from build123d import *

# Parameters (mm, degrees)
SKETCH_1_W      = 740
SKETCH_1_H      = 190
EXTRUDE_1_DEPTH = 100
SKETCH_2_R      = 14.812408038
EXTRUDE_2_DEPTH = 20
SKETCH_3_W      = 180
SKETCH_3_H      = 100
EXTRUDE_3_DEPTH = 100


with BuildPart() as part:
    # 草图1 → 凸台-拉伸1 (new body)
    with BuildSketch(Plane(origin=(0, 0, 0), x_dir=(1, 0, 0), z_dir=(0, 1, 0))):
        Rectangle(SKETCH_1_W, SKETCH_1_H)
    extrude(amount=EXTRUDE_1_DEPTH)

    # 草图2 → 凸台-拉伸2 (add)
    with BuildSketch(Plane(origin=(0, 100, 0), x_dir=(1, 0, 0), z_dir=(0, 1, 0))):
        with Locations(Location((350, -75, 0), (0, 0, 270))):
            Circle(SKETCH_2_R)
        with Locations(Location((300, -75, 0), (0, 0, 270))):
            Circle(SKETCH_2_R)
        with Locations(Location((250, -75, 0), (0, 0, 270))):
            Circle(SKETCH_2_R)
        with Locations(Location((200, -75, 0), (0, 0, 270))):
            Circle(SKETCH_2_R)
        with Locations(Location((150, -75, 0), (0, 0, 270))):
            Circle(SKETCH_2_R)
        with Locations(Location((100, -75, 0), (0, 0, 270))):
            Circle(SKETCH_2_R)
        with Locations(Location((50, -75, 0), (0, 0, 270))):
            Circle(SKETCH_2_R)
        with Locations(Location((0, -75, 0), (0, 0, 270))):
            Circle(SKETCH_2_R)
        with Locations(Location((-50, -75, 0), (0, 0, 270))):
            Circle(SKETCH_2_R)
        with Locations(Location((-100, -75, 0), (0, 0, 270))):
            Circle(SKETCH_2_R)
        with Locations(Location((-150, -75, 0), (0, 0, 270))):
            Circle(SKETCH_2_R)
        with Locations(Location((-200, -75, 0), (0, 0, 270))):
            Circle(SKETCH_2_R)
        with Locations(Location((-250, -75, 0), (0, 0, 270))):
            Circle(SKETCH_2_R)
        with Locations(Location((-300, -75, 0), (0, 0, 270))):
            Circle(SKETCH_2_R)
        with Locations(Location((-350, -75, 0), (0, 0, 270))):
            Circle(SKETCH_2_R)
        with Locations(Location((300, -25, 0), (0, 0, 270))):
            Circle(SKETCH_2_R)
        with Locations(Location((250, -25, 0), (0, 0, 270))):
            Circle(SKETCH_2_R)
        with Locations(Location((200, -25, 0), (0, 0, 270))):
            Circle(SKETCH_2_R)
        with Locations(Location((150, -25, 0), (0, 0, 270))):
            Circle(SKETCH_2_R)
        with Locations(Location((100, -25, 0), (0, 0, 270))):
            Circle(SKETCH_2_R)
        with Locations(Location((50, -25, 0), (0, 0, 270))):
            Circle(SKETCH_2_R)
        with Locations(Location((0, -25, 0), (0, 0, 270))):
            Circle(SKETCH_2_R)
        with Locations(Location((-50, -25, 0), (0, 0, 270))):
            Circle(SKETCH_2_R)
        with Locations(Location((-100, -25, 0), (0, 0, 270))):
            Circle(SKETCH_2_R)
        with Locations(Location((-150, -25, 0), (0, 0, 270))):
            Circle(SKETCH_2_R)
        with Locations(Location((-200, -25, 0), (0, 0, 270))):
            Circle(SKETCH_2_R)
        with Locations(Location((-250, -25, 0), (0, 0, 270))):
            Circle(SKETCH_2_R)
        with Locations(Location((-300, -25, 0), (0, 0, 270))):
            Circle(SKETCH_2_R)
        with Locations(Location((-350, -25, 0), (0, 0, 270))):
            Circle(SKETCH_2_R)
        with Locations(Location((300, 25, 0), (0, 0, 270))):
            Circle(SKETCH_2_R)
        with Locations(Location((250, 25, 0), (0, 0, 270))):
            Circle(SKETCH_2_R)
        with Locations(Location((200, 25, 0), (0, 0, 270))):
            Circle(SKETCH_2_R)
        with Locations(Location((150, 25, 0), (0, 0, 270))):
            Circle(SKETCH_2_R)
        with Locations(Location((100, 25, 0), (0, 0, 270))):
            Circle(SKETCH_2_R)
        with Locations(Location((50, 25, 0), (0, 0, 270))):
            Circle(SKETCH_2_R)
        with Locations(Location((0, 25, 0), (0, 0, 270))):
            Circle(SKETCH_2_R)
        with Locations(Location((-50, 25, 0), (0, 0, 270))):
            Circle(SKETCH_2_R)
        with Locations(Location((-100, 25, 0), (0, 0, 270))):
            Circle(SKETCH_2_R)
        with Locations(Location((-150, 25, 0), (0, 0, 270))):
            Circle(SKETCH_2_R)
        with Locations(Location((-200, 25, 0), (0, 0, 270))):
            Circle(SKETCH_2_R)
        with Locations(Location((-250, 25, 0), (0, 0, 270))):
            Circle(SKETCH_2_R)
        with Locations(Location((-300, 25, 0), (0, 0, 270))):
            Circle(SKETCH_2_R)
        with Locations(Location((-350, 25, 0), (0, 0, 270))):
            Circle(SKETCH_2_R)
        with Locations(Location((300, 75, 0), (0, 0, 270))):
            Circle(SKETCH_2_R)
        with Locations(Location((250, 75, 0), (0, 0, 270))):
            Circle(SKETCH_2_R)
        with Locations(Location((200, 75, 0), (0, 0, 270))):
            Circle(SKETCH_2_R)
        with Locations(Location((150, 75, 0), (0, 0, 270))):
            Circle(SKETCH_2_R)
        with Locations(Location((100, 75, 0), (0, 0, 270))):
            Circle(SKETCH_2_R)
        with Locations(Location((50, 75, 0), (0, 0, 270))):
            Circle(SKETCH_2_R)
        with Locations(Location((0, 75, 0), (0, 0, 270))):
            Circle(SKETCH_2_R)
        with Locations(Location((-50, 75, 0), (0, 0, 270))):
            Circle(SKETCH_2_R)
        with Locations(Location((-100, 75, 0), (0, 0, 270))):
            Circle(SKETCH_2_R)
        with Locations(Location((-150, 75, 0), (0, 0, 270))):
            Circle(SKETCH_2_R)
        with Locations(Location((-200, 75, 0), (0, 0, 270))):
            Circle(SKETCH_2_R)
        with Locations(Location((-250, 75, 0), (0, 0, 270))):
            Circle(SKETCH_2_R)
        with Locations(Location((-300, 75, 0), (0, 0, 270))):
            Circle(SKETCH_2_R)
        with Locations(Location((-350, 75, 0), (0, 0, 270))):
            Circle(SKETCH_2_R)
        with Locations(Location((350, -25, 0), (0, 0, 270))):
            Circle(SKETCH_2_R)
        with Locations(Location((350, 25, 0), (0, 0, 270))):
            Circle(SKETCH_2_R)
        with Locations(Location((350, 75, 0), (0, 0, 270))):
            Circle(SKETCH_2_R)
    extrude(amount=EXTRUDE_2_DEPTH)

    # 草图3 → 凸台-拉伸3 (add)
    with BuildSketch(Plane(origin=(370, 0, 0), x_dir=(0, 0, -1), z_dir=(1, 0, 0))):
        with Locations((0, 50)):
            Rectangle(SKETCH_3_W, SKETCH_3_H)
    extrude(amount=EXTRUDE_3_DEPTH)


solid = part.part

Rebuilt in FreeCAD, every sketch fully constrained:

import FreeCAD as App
import Part
import Sketcher

V = App.Vector

doc = App.newDocument("Part")
body = doc.addObject("PartDesign::Body", "Body")

# Sketch on XZ plane
sketch1 = body.newObject("Sketcher::SketchObject", "Sketch")
sketch1.AttachmentSupport = (doc.getObject("XZ_Plane"), [""])
sketch1.MapMode = "FlatFace"
sketch1.addGeometry(Part.LineSegment(V(-370, -95, 0), V(-370, 95, 0)), False)
sketch1.addGeometry(Part.LineSegment(V(-370, 95, 0), V(370, 95, 0)), False)
sketch1.addGeometry(Part.LineSegment(V(370, 95, 0), V(370, -95, 0)), False)
sketch1.addGeometry(Part.LineSegment(V(370, -95, 0), V(-370, -95, 0)), False)
sketch1.addConstraint(Sketcher.Constraint("Coincident", 0, 2, 1, 1))
sketch1.addConstraint(Sketcher.Constraint("Coincident", 1, 2, 2, 1))
sketch1.addConstraint(Sketcher.Constraint("Coincident", 2, 2, 3, 1))
sketch1.addConstraint(Sketcher.Constraint("Coincident", 3, 2, 0, 1))
sketch1.addConstraint(Sketcher.Constraint("Vertical", 0))
sketch1.addConstraint(Sketcher.Constraint("Horizontal", 1))
sketch1.addConstraint(Sketcher.Constraint("Vertical", 2))
sketch1.addConstraint(Sketcher.Constraint("Horizontal", 3))
sketch1.addConstraint(Sketcher.Constraint("Symmetric", 0, 2, 2, 2, -1, 1))
sketch1.addConstraint(Sketcher.Constraint("DistanceX", 1, 1, 1, 2, 740.0))
sketch1.addConstraint(Sketcher.Constraint("DistanceY", 0, 1, 0, 2, 190.0))
pad1 = body.newObject("PartDesign::Pad", "Pad")
pad1.Profile = sketch1
pad1.Length = 100
pad1.Reversed = True

# Sketch on XZ plane
sketch2 = body.newObject("Sketcher::SketchObject", "Sketch001")
sketch2.AttachmentSupport = (doc.getObject("XZ_Plane"), [""])
sketch2.MapMode = "FlatFace"
sketch2.AttachmentOffset = App.Placement(V(0, 0, -100), App.Rotation())
sketch2.addGeometry(Part.Circle(V(350, 75, 0), V(0, 0, 1), 15), False)
sketch2.addGeometry(Part.Circle(V(300, 75, 0), V(0, 0, 1), 15), False)
sketch2.addGeometry(Part.Circle(V(250, 75, 0), V(0, 0, 1), 15), False)
sketch2.addGeometry(Part.Circle(V(200, 75, 0), V(0, 0, 1), 15), False)
sketch2.addGeometry(Part.Circle(V(150, 75, 0), V(0, 0, 1), 15), False)
sketch2.addGeometry(Part.Circle(V(100, 75, 0), V(0, 0, 1), 15), False)
sketch2.addGeometry(Part.Circle(V(50, 75, 0), V(0, 0, 1), 15), False)
sketch2.addGeometry(Part.Circle(V(0, 75, 0), V(0, 0, 1), 15), False)
sketch2.addGeometry(Part.Circle(V(-50, 75, 0), V(0, 0, 1), 15), False)
sketch2.addGeometry(Part.Circle(V(-100, 75, 0), V(0, 0, 1), 15), False)
sketch2.addGeometry(Part.Circle(V(-150, 75, 0), V(0, 0, 1), 15), False)
sketch2.addGeometry(Part.Circle(V(-200, 75, 0), V(0, 0, 1), 15), False)
sketch2.addGeometry(Part.Circle(V(-250, 75, 0), V(0, 0, 1), 15), False)
sketch2.addGeometry(Part.Circle(V(-300, 75, 0), V(0, 0, 1), 15), False)
sketch2.addGeometry(Part.Circle(V(-350, 75, 0), V(0, 0, 1), 15), False)
sketch2.addGeometry(Part.Circle(V(300, 25, 0), V(0, 0, 1), 15), False)
sketch2.addGeometry(Part.Circle(V(250, 25, 0), V(0, 0, 1), 15), False)
sketch2.addGeometry(Part.Circle(V(200, 25, 0), V(0, 0, 1), 15), False)
sketch2.addGeometry(Part.Circle(V(150, 25, 0), V(0, 0, 1), 15), False)
sketch2.addGeometry(Part.Circle(V(100, 25, 0), V(0, 0, 1), 15), False)
sketch2.addGeometry(Part.Circle(V(50, 25, 0), V(0, 0, 1), 15), False)
sketch2.addGeometry(Part.Circle(V(0, 25, 0), V(0, 0, 1), 15), False)
sketch2.addGeometry(Part.Circle(V(-50, 25, 0), V(0, 0, 1), 15), False)
sketch2.addGeometry(Part.Circle(V(-100, 25, 0), V(0, 0, 1), 15), False)
sketch2.addGeometry(Part.Circle(V(-150, 25, 0), V(0, 0, 1), 15), False)
sketch2.addGeometry(Part.Circle(V(-200, 25, 0), V(0, 0, 1), 15), False)
sketch2.addGeometry(Part.Circle(V(-250, 25, 0), V(0, 0, 1), 15), False)
sketch2.addGeometry(Part.Circle(V(-300, 25, 0), V(0, 0, 1), 15), False)
sketch2.addGeometry(Part.Circle(V(-350, 25, 0), V(0, 0, 1), 15), False)
sketch2.addGeometry(Part.Circle(V(300, -25, 0), V(0, 0, 1), 15), False)
sketch2.addGeometry(Part.Circle(V(250, -25, 0), V(0, 0, 1), 15), False)
sketch2.addGeometry(Part.Circle(V(200, -25, 0), V(0, 0, 1), 15), False)
sketch2.addGeometry(Part.Circle(V(150, -25, 0), V(0, 0, 1), 15), False)
sketch2.addGeometry(Part.Circle(V(100, -25, 0), V(0, 0, 1), 15), False)
sketch2.addGeometry(Part.Circle(V(50, -25, 0), V(0, 0, 1), 15), False)
sketch2.addGeometry(Part.Circle(V(0, -25, 0), V(0, 0, 1), 15), False)
sketch2.addGeometry(Part.Circle(V(-50, -25, 0), V(0, 0, 1), 15), False)
sketch2.addGeometry(Part.Circle(V(-100, -25, 0), V(0, 0, 1), 15), False)
sketch2.addGeometry(Part.Circle(V(-150, -25, 0), V(0, 0, 1), 15), False)
sketch2.addGeometry(Part.Circle(V(-200, -25, 0), V(0, 0, 1), 15), False)
sketch2.addGeometry(Part.Circle(V(-250, -25, 0), V(0, 0, 1), 15), False)
sketch2.addGeometry(Part.Circle(V(-300, -25, 0), V(0, 0, 1), 15), False)
sketch2.addGeometry(Part.Circle(V(-350, -25, 0), V(0, 0, 1), 15), False)
sketch2.addGeometry(Part.Circle(V(300, -75, 0), V(0, 0, 1), 15), False)
sketch2.addGeometry(Part.Circle(V(250, -75, 0), V(0, 0, 1), 15), False)
sketch2.addGeometry(Part.Circle(V(200, -75, 0), V(0, 0, 1), 15), False)
sketch2.addGeometry(Part.Circle(V(150, -75, 0), V(0, 0, 1), 15), False)
sketch2.addGeometry(Part.Circle(V(100, -75, 0), V(0, 0, 1), 15), False)
sketch2.addGeometry(Part.Circle(V(50, -75, 0), V(0, 0, 1), 15), False)
sketch2.addGeometry(Part.Circle(V(0, -75, 0), V(0, 0, 1), 15), False)
sketch2.addGeometry(Part.Circle(V(-50, -75, 0), V(0, 0, 1), 15), False)
sketch2.addGeometry(Part.Circle(V(-100, -75, 0), V(0, 0, 1), 15), False)
sketch2.addGeometry(Part.Circle(V(-150, -75, 0), V(0, 0, 1), 15), False)
sketch2.addGeometry(Part.Circle(V(-200, -75, 0), V(0, 0, 1), 15), False)
sketch2.addGeometry(Part.Circle(V(-250, -75, 0), V(0, 0, 1), 15), False)
sketch2.addGeometry(Part.Circle(V(-300, -75, 0), V(0, 0, 1), 15), False)
sketch2.addGeometry(Part.Circle(V(-350, -75, 0), V(0, 0, 1), 15), False)
sketch2.addGeometry(Part.Circle(V(350, 25, 0), V(0, 0, 1), 15), False)
sketch2.addGeometry(Part.Circle(V(350, -25, 0), V(0, 0, 1), 15), False)
sketch2.addGeometry(Part.Circle(V(350, -75, 0), V(0, 0, 1), 15), False)
sketch2.addConstraint(Sketcher.Constraint("Equal", 0, 1))
sketch2.addConstraint(Sketcher.Constraint("Equal", 1, 2))
sketch2.addConstraint(Sketcher.Constraint("Equal", 2, 3))
sketch2.addConstraint(Sketcher.Constraint("Equal", 3, 4))
sketch2.addConstraint(Sketcher.Constraint("Equal", 4, 5))
sketch2.addConstraint(Sketcher.Constraint("Equal", 5, 6))
sketch2.addConstraint(Sketcher.Constraint("Equal", 6, 7))
sketch2.addConstraint(Sketcher.Constraint("Equal", 7, 8))
sketch2.addConstraint(Sketcher.Constraint("Equal", 8, 9))
sketch2.addConstraint(Sketcher.Constraint("Equal", 9, 10))
sketch2.addConstraint(Sketcher.Constraint("Equal", 10, 11))
sketch2.addConstraint(Sketcher.Constraint("Equal", 11, 12))
sketch2.addConstraint(Sketcher.Constraint("Equal", 12, 13))
sketch2.addConstraint(Sketcher.Constraint("Equal", 13, 14))
sketch2.addConstraint(Sketcher.Constraint("Equal", 14, 15))
sketch2.addConstraint(Sketcher.Constraint("Equal", 15, 16))
sketch2.addConstraint(Sketcher.Constraint("Equal", 16, 17))
sketch2.addConstraint(Sketcher.Constraint("Equal", 17, 18))
sketch2.addConstraint(Sketcher.Constraint("Equal", 18, 19))
sketch2.addConstraint(Sketcher.Constraint("Equal", 19, 20))
sketch2.addConstraint(Sketcher.Constraint("Equal", 20, 21))
sketch2.addConstraint(Sketcher.Constraint("Equal", 21, 22))
sketch2.addConstraint(Sketcher.Constraint("Equal", 22, 23))
sketch2.addConstraint(Sketcher.Constraint("Equal", 23, 24))
sketch2.addConstraint(Sketcher.Constraint("Equal", 24, 25))
sketch2.addConstraint(Sketcher.Constraint("Equal", 25, 26))
sketch2.addConstraint(Sketcher.Constraint("Equal", 26, 27))
sketch2.addConstraint(Sketcher.Constraint("Equal", 27, 28))
sketch2.addConstraint(Sketcher.Constraint("Equal", 28, 29))
sketch2.addConstraint(Sketcher.Constraint("Equal", 29, 30))
sketch2.addConstraint(Sketcher.Constraint("Equal", 30, 31))
sketch2.addConstraint(Sketcher.Constraint("Equal", 31, 32))
sketch2.addConstraint(Sketcher.Constraint("Equal", 32, 33))
sketch2.addConstraint(Sketcher.Constraint("Equal", 33, 34))
sketch2.addConstraint(Sketcher.Constraint("Equal", 34, 35))
sketch2.addConstraint(Sketcher.Constraint("Equal", 35, 36))
sketch2.addConstraint(Sketcher.Constraint("Equal", 36, 37))
sketch2.addConstraint(Sketcher.Constraint("Equal", 37, 38))
sketch2.addConstraint(Sketcher.Constraint("Equal", 38, 39))
sketch2.addConstraint(Sketcher.Constraint("Equal", 39, 40))
sketch2.addConstraint(Sketcher.Constraint("Equal", 40, 41))
sketch2.addConstraint(Sketcher.Constraint("Equal", 41, 42))
sketch2.addConstraint(Sketcher.Constraint("Equal", 42, 43))
sketch2.addConstraint(Sketcher.Constraint("Equal", 43, 44))
sketch2.addConstraint(Sketcher.Constraint("Equal", 44, 45))
sketch2.addConstraint(Sketcher.Constraint("Equal", 45, 46))
sketch2.addConstraint(Sketcher.Constraint("Equal", 46, 47))
sketch2.addConstraint(Sketcher.Constraint("Equal", 47, 48))
sketch2.addConstraint(Sketcher.Constraint("Equal", 48, 49))
sketch2.addConstraint(Sketcher.Constraint("Equal", 49, 50))
sketch2.addConstraint(Sketcher.Constraint("Equal", 50, 51))
sketch2.addConstraint(Sketcher.Constraint("Equal", 51, 52))
sketch2.addConstraint(Sketcher.Constraint("Equal", 52, 53))
sketch2.addConstraint(Sketcher.Constraint("Equal", 53, 54))
sketch2.addConstraint(Sketcher.Constraint("Equal", 54, 55))
sketch2.addConstraint(Sketcher.Constraint("Equal", 55, 56))
sketch2.addConstraint(Sketcher.Constraint("Equal", 56, 57))
sketch2.addConstraint(Sketcher.Constraint("Equal", 57, 58))
sketch2.addConstraint(Sketcher.Constraint("Equal", 58, 59))
sketch2.addConstraint(Sketcher.Constraint("Symmetric", 27, 3, 29, 3, -1, 1))
sketch2.addConstraint(Sketcher.Constraint("Symmetric", 26, 3, 30, 3, -1, 1))
sketch2.addConstraint(Sketcher.Constraint("Symmetric", 25, 3, 31, 3, -1, 1))
sketch2.addConstraint(Sketcher.Constraint("Symmetric", 24, 3, 32, 3, -1, 1))
sketch2.addConstraint(Sketcher.Constraint("Symmetric", 23, 3, 33, 3, -1, 1))
sketch2.addConstraint(Sketcher.Constraint("Symmetric", 22, 3, 34, 3, -1, 1))
sketch2.addConstraint(Sketcher.Constraint("Symmetric", 21, 3, 35, 3, -1, 1))
sketch2.addConstraint(Sketcher.Constraint("Symmetric", 20, 3, 36, 3, -1, 1))
sketch2.addConstraint(Sketcher.Constraint("Symmetric", 19, 3, 37, 3, -1, 1))
sketch2.addConstraint(Sketcher.Constraint("Symmetric", 18, 3, 38, 3, -1, 1))
sketch2.addConstraint(Sketcher.Constraint("Symmetric", 17, 3, 39, 3, -1, 1))
sketch2.addConstraint(Sketcher.Constraint("Symmetric", 16, 3, 40, 3, -1, 1))
sketch2.addConstraint(Sketcher.Constraint("Symmetric", 15, 3, 41, 3, -1, 1))
sketch2.addConstraint(Sketcher.Constraint("Symmetric", 13, 3, 43, 3, -1, 1))
sketch2.addConstraint(Sketcher.Constraint("Symmetric", 12, 3, 44, 3, -1, 1))
sketch2.addConstraint(Sketcher.Constraint("Symmetric", 11, 3, 45, 3, -1, 1))
sketch2.addConstraint(Sketcher.Constraint("Symmetric", 10, 3, 46, 3, -1, 1))
sketch2.addConstraint(Sketcher.Constraint("Symmetric", 9, 3, 47, 3, -1, 1))
sketch2.addConstraint(Sketcher.Constraint("Symmetric", 8, 3, 48, 3, -1, 1))
sketch2.addConstraint(Sketcher.Constraint("Symmetric", 7, 3, 49, 3, -1, 1))
sketch2.addConstraint(Sketcher.Constraint("Symmetric", 6, 3, 50, 3, -1, 1))
sketch2.addConstraint(Sketcher.Constraint("Symmetric", 5, 3, 51, 3, -1, 1))
sketch2.addConstraint(Sketcher.Constraint("Symmetric", 4, 3, 52, 3, -1, 1))
sketch2.addConstraint(Sketcher.Constraint("Symmetric", 3, 3, 53, 3, -1, 1))
sketch2.addConstraint(Sketcher.Constraint("Symmetric", 2, 3, 54, 3, -1, 1))
sketch2.addConstraint(Sketcher.Constraint("Symmetric", 1, 3, 55, 3, -1, 1))
sketch2.addConstraint(Sketcher.Constraint("Symmetric", 0, 3, 56, 3, -1, 1))
sketch2.addConstraint(Sketcher.Constraint("Symmetric", 42, 3, 57, 3, -1, 1))
sketch2.addConstraint(Sketcher.Constraint("Symmetric", 28, 3, 58, 3, -1, 1))
sketch2.addConstraint(Sketcher.Constraint("Symmetric", 14, 3, 59, 3, -1, 1))
sketch2.addConstraint(Sketcher.Constraint("Symmetric", 6, 3, 8, 3, -2))
sketch2.addConstraint(Sketcher.Constraint("Symmetric", 5, 3, 9, 3, -2))
sketch2.addConstraint(Sketcher.Constraint("Symmetric", 4, 3, 10, 3, -2))
sketch2.addConstraint(Sketcher.Constraint("Symmetric", 3, 3, 11, 3, -2))
sketch2.addConstraint(Sketcher.Constraint("Symmetric", 2, 3, 12, 3, -2))
sketch2.addConstraint(Sketcher.Constraint("Symmetric", 1, 3, 13, 3, -2))
sketch2.addConstraint(Sketcher.Constraint("Symmetric", 0, 3, 14, 3, -2))
sketch2.addConstraint(Sketcher.Constraint("Symmetric", 20, 3, 22, 3, -2))
sketch2.addConstraint(Sketcher.Constraint("Symmetric", 19, 3, 23, 3, -2))
sketch2.addConstraint(Sketcher.Constraint("Symmetric", 18, 3, 24, 3, -2))
sketch2.addConstraint(Sketcher.Constraint("Symmetric", 17, 3, 25, 3, -2))
sketch2.addConstraint(Sketcher.Constraint("Symmetric", 16, 3, 26, 3, -2))
sketch2.addConstraint(Sketcher.Constraint("Symmetric", 15, 3, 27, 3, -2))
sketch2.addConstraint(Sketcher.Constraint("Symmetric", 28, 3, 57, 3, -2))
sketch2.addConstraint(Sketcher.Constraint("PointOnObject", 7, 3, -2))
sketch2.addConstraint(Sketcher.Constraint("PointOnObject", 21, 3, -2))
sketch2.addConstraint(Sketcher.Constraint("Horizontal", 0, 3, 1, 3))
sketch2.addConstraint(Sketcher.Constraint("Horizontal", 1, 3, 2, 3))
sketch2.addConstraint(Sketcher.Constraint("Horizontal", 2, 3, 3, 3))
sketch2.addConstraint(Sketcher.Constraint("Horizontal", 3, 3, 4, 3))
sketch2.addConstraint(Sketcher.Constraint("Horizontal", 4, 3, 5, 3))
sketch2.addConstraint(Sketcher.Constraint("Horizontal", 5, 3, 6, 3))
sketch2.addConstraint(Sketcher.Constraint("Horizontal", 6, 3, 7, 3))
sketch2.addConstraint(Sketcher.Constraint("Horizontal", 15, 3, 16, 3))
sketch2.addConstraint(Sketcher.Constraint("Horizontal", 16, 3, 17, 3))
sketch2.addConstraint(Sketcher.Constraint("Horizontal", 17, 3, 18, 3))
sketch2.addConstraint(Sketcher.Constraint("Horizontal", 18, 3, 19, 3))
sketch2.addConstraint(Sketcher.Constraint("Horizontal", 19, 3, 20, 3))
sketch2.addConstraint(Sketcher.Constraint("Horizontal", 20, 3, 21, 3))
sketch2.addConstraint(Sketcher.Constraint("Horizontal", 27, 3, 28, 3))
sketch2.addConstraint(Sketcher.Constraint("Vertical", 1, 3, 15, 3))
sketch2.addConstraint(Sketcher.Constraint("Vertical", 2, 3, 16, 3))
sketch2.addConstraint(Sketcher.Constraint("Vertical", 3, 3, 17, 3))
sketch2.addConstraint(Sketcher.Constraint("Vertical", 4, 3, 18, 3))
sketch2.addConstraint(Sketcher.Constraint("Vertical", 5, 3, 19, 3))
sketch2.addConstraint(Sketcher.Constraint("Vertical", 6, 3, 20, 3))
sketch2.addConstraint(Sketcher.Constraint("Vertical", 14, 3, 28, 3))
sketch2.addConstraint(Sketcher.Constraint("DistanceX", -1, 1, 0, 3, 350.0))
sketch2.addConstraint(Sketcher.Constraint("DistanceY", -1, 1, 0, 3, 75.0))
sketch2.addConstraint(Sketcher.Constraint("DistanceX", -1, 1, 1, 3, 300.0))
sketch2.addConstraint(Sketcher.Constraint("DistanceX", -1, 1, 2, 3, 250.0))
sketch2.addConstraint(Sketcher.Constraint("DistanceX", -1, 1, 3, 3, 200.0))
sketch2.addConstraint(Sketcher.Constraint("DistanceX", -1, 1, 4, 3, 150.0))
sketch2.addConstraint(Sketcher.Constraint("DistanceX", -1, 1, 5, 3, 100.0))
sketch2.addConstraint(Sketcher.Constraint("DistanceX", -1, 1, 6, 3, 50.0))
sketch2.addConstraint(Sketcher.Constraint("DistanceY", -1, 1, 15, 3, 25.0))
sketch2.addConstraint(Sketcher.Constraint("Diameter", 0, 29.624816))
pad2 = body.newObject("PartDesign::Pad", "Pad001")
pad2.Profile = sketch2
pad2.Length = 20
pad2.Reversed = True

# Sketch on YZ plane
sketch3 = body.newObject("Sketcher::SketchObject", "Sketch002")
sketch3.AttachmentSupport = (doc.getObject("YZ_Plane"), [""])
sketch3.MapMode = "FlatFace"
sketch3.AttachmentOffset = App.Placement(V(0, 0, 370), App.Rotation())
sketch3.addGeometry(Part.LineSegment(V(100, 90, 0), V(0, 90, 0)), False)
sketch3.addGeometry(Part.LineSegment(V(0, 90, 0), V(0, -90, 0)), False)
sketch3.addGeometry(Part.LineSegment(V(0, -90, 0), V(100, -90, 0)), False)
sketch3.addGeometry(Part.LineSegment(V(100, -90, 0), V(100, 90, 0)), False)
sketch3.addConstraint(Sketcher.Constraint("Coincident", 0, 2, 1, 1))
sketch3.addConstraint(Sketcher.Constraint("Coincident", 1, 2, 2, 1))
sketch3.addConstraint(Sketcher.Constraint("Coincident", 2, 2, 3, 1))
sketch3.addConstraint(Sketcher.Constraint("Coincident", 3, 2, 0, 1))
sketch3.addConstraint(Sketcher.Constraint("Horizontal", 0))
sketch3.addConstraint(Sketcher.Constraint("Vertical", 1))
sketch3.addConstraint(Sketcher.Constraint("Horizontal", 2))
sketch3.addConstraint(Sketcher.Constraint("Vertical", 3))
sketch3.addConstraint(Sketcher.Constraint("Symmetric", 0, 2, 1, 2, -1, 1))
sketch3.addConstraint(Sketcher.Constraint("DistanceX", 0, 2, 0, 1, 100.0))
sketch3.addConstraint(Sketcher.Constraint("DistanceY", 1, 2, 1, 1, 180.0))
pad3 = body.newObject("PartDesign::Pad", "Pad002")
pad3.Profile = sketch3
pad3.Length = 100

doc.recompute()
